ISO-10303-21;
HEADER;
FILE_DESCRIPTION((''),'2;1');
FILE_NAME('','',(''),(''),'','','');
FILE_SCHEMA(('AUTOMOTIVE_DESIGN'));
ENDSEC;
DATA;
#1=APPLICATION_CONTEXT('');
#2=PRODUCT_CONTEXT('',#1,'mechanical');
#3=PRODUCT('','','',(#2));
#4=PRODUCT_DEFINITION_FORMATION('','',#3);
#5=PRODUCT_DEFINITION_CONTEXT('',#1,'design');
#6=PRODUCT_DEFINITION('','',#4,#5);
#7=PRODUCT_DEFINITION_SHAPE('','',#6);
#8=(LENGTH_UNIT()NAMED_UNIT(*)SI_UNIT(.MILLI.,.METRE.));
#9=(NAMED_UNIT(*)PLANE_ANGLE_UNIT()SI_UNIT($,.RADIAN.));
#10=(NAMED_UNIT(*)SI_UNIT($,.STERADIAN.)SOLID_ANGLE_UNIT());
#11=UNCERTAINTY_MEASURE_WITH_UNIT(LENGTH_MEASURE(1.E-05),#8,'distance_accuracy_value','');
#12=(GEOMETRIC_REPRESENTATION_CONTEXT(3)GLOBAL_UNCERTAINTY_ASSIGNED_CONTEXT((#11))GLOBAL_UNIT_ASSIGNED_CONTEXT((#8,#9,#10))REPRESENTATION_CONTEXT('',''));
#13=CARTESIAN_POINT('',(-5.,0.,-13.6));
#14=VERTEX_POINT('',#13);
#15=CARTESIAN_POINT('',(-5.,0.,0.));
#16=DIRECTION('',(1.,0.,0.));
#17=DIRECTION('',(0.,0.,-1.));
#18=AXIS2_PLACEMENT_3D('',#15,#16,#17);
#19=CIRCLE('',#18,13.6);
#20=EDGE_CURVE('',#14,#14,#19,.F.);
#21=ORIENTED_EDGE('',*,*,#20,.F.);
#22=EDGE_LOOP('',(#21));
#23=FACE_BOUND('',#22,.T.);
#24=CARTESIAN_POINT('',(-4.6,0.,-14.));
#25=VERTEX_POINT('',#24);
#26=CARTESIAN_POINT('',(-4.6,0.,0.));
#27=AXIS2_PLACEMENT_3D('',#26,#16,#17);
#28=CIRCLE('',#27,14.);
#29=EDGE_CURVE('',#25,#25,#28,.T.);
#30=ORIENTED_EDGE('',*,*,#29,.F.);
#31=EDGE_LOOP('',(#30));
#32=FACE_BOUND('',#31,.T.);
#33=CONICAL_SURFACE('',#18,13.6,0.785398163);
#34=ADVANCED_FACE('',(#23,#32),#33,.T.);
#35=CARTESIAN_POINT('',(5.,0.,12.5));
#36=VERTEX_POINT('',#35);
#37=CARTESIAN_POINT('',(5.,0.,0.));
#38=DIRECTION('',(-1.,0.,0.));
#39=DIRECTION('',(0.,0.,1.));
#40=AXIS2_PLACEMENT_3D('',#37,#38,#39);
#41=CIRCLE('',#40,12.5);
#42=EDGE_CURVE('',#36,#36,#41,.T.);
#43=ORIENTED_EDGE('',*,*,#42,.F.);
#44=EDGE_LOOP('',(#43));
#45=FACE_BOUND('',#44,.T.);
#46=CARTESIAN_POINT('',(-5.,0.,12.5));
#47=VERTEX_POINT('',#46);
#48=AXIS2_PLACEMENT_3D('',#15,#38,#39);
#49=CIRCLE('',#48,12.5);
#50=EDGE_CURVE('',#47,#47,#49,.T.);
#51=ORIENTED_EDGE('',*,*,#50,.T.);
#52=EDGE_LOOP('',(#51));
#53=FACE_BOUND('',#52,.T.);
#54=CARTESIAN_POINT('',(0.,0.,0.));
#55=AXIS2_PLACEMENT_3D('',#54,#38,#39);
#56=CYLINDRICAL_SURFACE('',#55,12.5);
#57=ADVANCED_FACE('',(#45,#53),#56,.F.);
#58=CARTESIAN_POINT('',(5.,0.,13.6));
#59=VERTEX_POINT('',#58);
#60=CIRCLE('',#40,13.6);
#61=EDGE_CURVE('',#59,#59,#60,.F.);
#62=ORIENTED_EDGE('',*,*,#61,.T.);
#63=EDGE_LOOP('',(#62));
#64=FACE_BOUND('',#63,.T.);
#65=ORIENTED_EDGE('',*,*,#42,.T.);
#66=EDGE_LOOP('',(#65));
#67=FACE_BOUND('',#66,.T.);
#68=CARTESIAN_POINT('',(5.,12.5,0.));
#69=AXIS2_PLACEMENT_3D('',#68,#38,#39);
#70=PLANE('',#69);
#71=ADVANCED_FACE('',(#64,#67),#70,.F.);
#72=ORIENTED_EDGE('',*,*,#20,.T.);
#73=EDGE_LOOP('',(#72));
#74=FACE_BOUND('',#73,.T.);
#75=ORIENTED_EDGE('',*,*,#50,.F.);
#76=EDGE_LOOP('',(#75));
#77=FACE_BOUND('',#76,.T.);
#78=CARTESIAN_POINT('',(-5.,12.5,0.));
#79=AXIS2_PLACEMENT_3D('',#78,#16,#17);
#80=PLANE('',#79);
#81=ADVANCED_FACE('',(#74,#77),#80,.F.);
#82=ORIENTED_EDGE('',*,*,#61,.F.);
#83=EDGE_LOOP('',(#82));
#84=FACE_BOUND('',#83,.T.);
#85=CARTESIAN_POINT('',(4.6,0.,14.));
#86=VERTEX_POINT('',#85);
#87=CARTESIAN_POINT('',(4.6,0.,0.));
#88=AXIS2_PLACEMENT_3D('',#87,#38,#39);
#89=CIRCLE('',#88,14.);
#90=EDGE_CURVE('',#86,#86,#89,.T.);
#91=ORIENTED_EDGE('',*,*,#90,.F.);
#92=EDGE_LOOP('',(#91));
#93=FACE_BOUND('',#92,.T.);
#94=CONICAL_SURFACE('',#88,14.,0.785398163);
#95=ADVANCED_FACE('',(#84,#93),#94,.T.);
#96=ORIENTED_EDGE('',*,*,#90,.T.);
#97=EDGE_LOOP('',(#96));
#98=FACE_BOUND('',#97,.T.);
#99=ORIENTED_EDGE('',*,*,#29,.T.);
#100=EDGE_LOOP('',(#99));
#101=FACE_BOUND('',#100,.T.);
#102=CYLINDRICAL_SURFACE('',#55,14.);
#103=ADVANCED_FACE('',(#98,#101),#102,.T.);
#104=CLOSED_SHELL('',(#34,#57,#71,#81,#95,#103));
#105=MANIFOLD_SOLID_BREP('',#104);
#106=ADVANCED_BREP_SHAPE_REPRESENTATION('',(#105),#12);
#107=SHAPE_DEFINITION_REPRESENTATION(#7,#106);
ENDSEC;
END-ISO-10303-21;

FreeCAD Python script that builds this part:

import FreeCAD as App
import Part
import Sketcher

V = App.Vector


def edges_at(feature, points):
    """Names of the edges that pass closest to the given points."""
    edges = feature.Shape.Edges
    near = lambda p: min(range(len(edges)), key=lambda i: edges[i].distToShape(Part.Vertex(*p))[0])
    return sorted({f"Edge{near(p) + 1}" for p in points})

doc = App.newDocument("Part")
body = doc.addObject("PartDesign::Body", "Body")

# Sketch on XY plane
sketch1 = doc.addObject("Sketcher::SketchObject", "Sketch")
body.addObject(sketch1)
sketch1.AttachmentSupport = (doc.XY_Plane, [""])
sketch1.MapMode = "FlatFace"
sketch1.addGeometry([
    Part.LineSegment(V(-5, 14, 0), V(-5, 12.5, 0)),
    Part.LineSegment(V(-5, 12.5, 0), V(5, 12.5, 0)),
    Part.LineSegment(V(5, 12.5, 0), V(5, 14, 0)),
    Part.LineSegment(V(5, 14, 0), V(-5, 14, 0)),
], False)
sketch1.addConstraint([
    Sketcher.Constraint("Coincident", 0, 2, 1, 1),
    Sketcher.Constraint("Coincident", 1, 2, 2, 1),
    Sketcher.Constraint("Coincident", 2, 2, 3, 1),
    Sketcher.Constraint("Coincident", 3, 2, 0, 1),
    Sketcher.Constraint("Vertical", 0),
    Sketcher.Constraint("Horizontal", 1),
    Sketcher.Constraint("Vertical", 2),
    Sketcher.Constraint("Horizontal", 3),
    Sketcher.Constraint("DistanceX", 1, 1, 1, 2, 10.0),
    Sketcher.Constraint("DistanceY", 0, 2, 0, 1, 1.5),
    Sketcher.Constraint("DistanceX", 0, 2, -1, 1, 5.0),
    Sketcher.Constraint("DistanceY", -1, 1, 2, 2, 14.0),
])
revolution = doc.addObject("PartDesign::Revolution", "Revolution")
body.addObject(revolution)
revolution.Profile = sketch1
revolution.ReferenceAxis = (sketch1, ["H_Axis"])
revolution.Angle = 360
doc.recompute()

chamfer = doc.addObject("PartDesign::Chamfer", "Chamfer")
body.addObject(chamfer)
chamfer.Base = (revolution, edges_at(revolution, [(-5, -14, 0), (5, -14, 0)]))
chamfer.Size = 0.4

doc.recompute()
